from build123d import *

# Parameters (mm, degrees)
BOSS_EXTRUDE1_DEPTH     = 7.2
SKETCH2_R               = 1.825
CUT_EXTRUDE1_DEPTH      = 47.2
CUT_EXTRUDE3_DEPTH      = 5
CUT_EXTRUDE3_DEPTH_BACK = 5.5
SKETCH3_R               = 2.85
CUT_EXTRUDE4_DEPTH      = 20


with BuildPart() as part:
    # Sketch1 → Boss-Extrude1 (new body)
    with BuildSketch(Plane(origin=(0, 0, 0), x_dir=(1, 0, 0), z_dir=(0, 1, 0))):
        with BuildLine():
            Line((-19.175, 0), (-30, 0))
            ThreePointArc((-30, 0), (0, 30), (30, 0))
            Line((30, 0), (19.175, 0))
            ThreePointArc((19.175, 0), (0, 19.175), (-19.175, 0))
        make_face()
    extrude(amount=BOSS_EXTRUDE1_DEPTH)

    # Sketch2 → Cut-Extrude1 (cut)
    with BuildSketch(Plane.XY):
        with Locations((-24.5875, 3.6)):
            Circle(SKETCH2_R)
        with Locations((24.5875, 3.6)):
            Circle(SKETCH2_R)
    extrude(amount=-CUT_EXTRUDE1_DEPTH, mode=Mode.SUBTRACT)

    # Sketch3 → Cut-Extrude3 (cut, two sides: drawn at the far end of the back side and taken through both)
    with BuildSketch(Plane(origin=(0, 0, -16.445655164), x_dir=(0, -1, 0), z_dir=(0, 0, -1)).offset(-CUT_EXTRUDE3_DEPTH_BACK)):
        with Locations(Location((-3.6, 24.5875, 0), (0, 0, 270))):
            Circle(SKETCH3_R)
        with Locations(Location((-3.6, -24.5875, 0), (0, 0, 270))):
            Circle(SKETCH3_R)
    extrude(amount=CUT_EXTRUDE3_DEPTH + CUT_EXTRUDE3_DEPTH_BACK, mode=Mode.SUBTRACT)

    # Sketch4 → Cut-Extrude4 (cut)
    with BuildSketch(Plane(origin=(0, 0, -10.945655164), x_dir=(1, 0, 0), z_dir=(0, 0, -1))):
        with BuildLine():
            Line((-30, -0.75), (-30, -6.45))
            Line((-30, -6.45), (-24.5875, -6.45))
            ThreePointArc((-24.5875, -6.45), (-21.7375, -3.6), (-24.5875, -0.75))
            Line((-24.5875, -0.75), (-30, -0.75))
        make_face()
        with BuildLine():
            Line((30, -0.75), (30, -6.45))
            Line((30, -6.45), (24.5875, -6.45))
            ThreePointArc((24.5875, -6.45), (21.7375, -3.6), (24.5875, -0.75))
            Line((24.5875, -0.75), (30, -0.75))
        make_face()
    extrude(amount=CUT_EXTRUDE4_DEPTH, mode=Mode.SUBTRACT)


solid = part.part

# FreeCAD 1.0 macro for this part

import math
import FreeCAD as App
import Part
import Sketcher

V = App.Vector
Q = App.Units.Quantity

doc = App.newDocument("Part")
params = doc.addObject("Spreadsheet::Sheet", "Params")
for row, (alias, value) in enumerate([
    ("sketch1_radius", "30 mm"),
    ("pad1_length", "7.2 mm"),
    ("sketch2_diameter", "3.65 mm"),
    ("pocket1_length", "47.2 mm"),
    ("sketch3_diameter", "5.7 mm"),
    ("pocket2_length", "5 mm"),
    ("pocket2_length2", "5.5 mm"),
    ("sketch4_radius", "2.85 mm"),
    ("pocket3_length", "20 mm"),
], start=1):
    params.set(f"A{row}", alias)
    params.set(f"B{row}", "=" + value)
    params.setAlias(f"B{row}", alias)

body = doc.addObject("PartDesign::Body", "Body")

# Sketch on XZ plane
sketch1 = body.newObject("Sketcher::SketchObject", "Sketch")
sketch1.AttachmentSupport = (doc.getObject("XZ_Plane"), [""])
sketch1.MapMode = "FlatFace"
sketch1.addGeometry([
    Part.LineSegment(V(-30, 0, 0), V(-19, 0, 0)),
    Part.ArcOfCircle(Part.Circle(V(0, 0, 0), V(0, 0, 1), 19), math.radians(180), math.radians(360)),
    Part.LineSegment(V(19, 0, 0), V(30, 0, 0)),
    Part.ArcOfCircle(Part.Circle(V(0, 0, 0), V(0, 0, 1), 30), math.radians(180), math.radians(360)),
], False)
sketch1.addConstraint([
    Sketcher.Constraint("Coincident", 0, 2, 1, 1),
    Sketcher.Constraint("Coincident", 1, 2, 2, 1),
    Sketcher.Constraint("Coincident", 2, 2, 3, 2),
    Sketcher.Constraint("Coincident", 3, 1, 0, 1),
    Sketcher.Constraint("Horizontal", 0),
    Sketcher.Constraint("Horizontal", 2),
    Sketcher.Constraint("Coincident", 1, 3, -1, 1),
    Sketcher.Constraint("Coincident", 3, 3, -1, 1),
    Sketcher.Constraint("PointOnObject", 0, 2, -1),
    Sketcher.Constraint("PointOnObject", 1, 2, -1),
    Sketcher.Constraint("Radius", 3, Q("30 mm")),
    Sketcher.Constraint("Radius", 1, Q("19.175 mm")),
])
sketch1.setExpression("Constraints[10]", "Params.sketch1_radius")
pad1 = body.newObject("PartDesign::Pad", "Pad")
pad1.Profile = sketch1
pad1.setExpression("Length", "Params.pad1_length")
pad1.Reversed = True

# Sketch on XY plane
sketch2 = body.newObject("Sketcher::SketchObject", "Sketch001")
sketch2.AttachmentSupport = (doc.getObject("XY_Plane"), [""])
sketch2.MapMode = "FlatFace"
sketch2.addGeometry([
    Part.Circle(V(-24.6, 3.6, 0), V(0, 0, 1), 1.8),
    Part.Circle(V(24.6, 3.6, 0), V(0, 0, 1), 1.8),
], False)
sketch2.addConstraint([
    Sketcher.Constraint("Equal", 0, 1),
    Sketcher.Constraint("Symmetric", 0, 3, 1, 3, -2),
    Sketcher.Constraint("Diameter", 0, Q("3.65 mm")),
    Sketcher.Constraint("DistanceY", -1, 1, 0, 3, Q("3.6 mm")),
    Sketcher.Constraint("DistanceX", 0, 3, 1, 3, Q("49.175 mm")),
])
sketch2.setExpression("Constraints[2]", "Params.sketch2_diameter")
pocket1 = body.newObject("PartDesign::Pocket", "Pocket")
pocket1.Profile = sketch2
pocket1.setExpression("Length", "Params.pocket1_length")

# Sketch on XY plane
sketch3 = body.newObject("Sketcher::SketchObject", "Sketch002")
sketch3.AttachmentSupport = (doc.getObject("XY_Plane"), [""])
sketch3.MapMode = "FlatFace"
sketch3.AttachmentOffset = App.Placement(V(0, 0, -16.445655), App.Rotation())
sketch3.addGeometry([
    Part.Circle(V(-24.6, 3.6, 0), V(0, 0, 1), 2.9),
    Part.Circle(V(24.6, 3.6, 0), V(0, 0, 1), 2.9),
], False)
sketch3.addConstraint([
    Sketcher.Constraint("Equal", 0, 1),
    Sketcher.Constraint("Symmetric", 0, 3, 1, 3, -2),
    Sketcher.Constraint("Diameter", 0, Q("5.7 mm")),
    Sketcher.Constraint("DistanceY", -1, 1, 0, 3, Q("3.6 mm")),
    Sketcher.Constraint("DistanceX", 0, 3, 1, 3, Q("49.175 mm")),
])
sketch3.setExpression("Constraints[2]", "Params.sketch3_diameter")
pocket2 = body.newObject("PartDesign::Pocket", "Pocket001")
pocket2.Profile = sketch3
pocket2.Type = "TwoLengths"
pocket2.setExpression("Length", "Params.pocket2_length")
pocket2.setExpression("Length2", "Params.pocket2_length2")

# Sketch on XY plane
sketch4 = body.newObject("Sketcher::SketchObject", "Sketch003")
sketch4.AttachmentSupport = (doc.getObject("XY_Plane"), [""])
sketch4.MapMode = "FlatFace"
sketch4.AttachmentOffset = App.Placement(V(0, 0, -10.945655), App.Rotation())
sketch4.addGeometry([
    Part.LineSegment(V(-30, 0.8, 0), V(-30, 6.5, 0)),  # 0
    Part.LineSegment(V(-30, 6.5, 0), V(-24.6, 6.5, 0)),  # 1
    Part.ArcOfCircle(Part.Circle(V(-24.6, 3.6, 0), V(0, 0, 1), 2.9), math.radians(-90), math.radians(90)),  # 2
    Part.LineSegment(V(-24.6, 0.8, 0), V(-30, 0.8, 0)),  # 3
    Part.LineSegment(V(30, 6.5, 0), V(30, 0.8, 0)),  # 4
    Part.LineSegment(V(30, 0.8, 0), V(24.6, 0.8, 0)),  # 5
    Part.ArcOfCircle(Part.Circle(V(24.6, 3.6, 0), V(0, 0, 1), 2.9), math.radians(90), math.radians(270)),  # 6
    Part.LineSegment(V(24.6, 6.5, 0), V(30, 6.5, 0)),  # 7
], False)
sketch4.addConstraint([
    Sketcher.Constraint("Coincident", 0, 2, 1, 1),
    Sketcher.Constraint("Tangent", 1, 2, 2, 2),
    Sketcher.Constraint("Tangent", 2, 1, 3, 1),
    Sketcher.Constraint("Coincident", 3, 2, 0, 1),
    Sketcher.Constraint("Coincident", 4, 2, 5, 1),
    Sketcher.Constraint("Tangent", 5, 2, 6, 2),
    Sketcher.Constraint("Tangent", 6, 1, 7, 1),
    Sketcher.Constraint("Coincident", 7, 2, 4, 1),
    Sketcher.Constraint("Vertical", 0),
    Sketcher.Constraint("Horizontal", 1),
    Sketcher.Constraint("Horizontal", 3),
    Sketcher.Constraint("Vertical", 4),
    Sketcher.Constraint("Horizontal", 5),
    Sketcher.Constraint("Horizontal", 7),
    Sketcher.Constraint("Equal", 2, 6),
    Sketcher.Constraint("Symmetric", 2, 3, 6, 3, -2),
    Sketcher.Constraint("Equal", 3, 5),
    Sketcher.Constraint("Radius", 2, Q("2.85 mm")),
    Sketcher.Constraint("DistanceX", 0, 2, -1, 1, Q("30 mm")),
    Sketcher.Constraint("DistanceY", -1, 1, 2, 3, Q("3.6 mm")),
    Sketcher.Constraint("DistanceX", 1, 1, 1, 2, Q("5.4125 mm")),
])
sketch4.setExpression("Constraints[17]", "Params.sketch4_radius")
pocket3 = body.newObject("PartDesign::Pocket", "Pocket002")
pocket3.Profile = sketch4
pocket3.setExpression("Length", "Params.pocket3_length")

doc.recompute()
